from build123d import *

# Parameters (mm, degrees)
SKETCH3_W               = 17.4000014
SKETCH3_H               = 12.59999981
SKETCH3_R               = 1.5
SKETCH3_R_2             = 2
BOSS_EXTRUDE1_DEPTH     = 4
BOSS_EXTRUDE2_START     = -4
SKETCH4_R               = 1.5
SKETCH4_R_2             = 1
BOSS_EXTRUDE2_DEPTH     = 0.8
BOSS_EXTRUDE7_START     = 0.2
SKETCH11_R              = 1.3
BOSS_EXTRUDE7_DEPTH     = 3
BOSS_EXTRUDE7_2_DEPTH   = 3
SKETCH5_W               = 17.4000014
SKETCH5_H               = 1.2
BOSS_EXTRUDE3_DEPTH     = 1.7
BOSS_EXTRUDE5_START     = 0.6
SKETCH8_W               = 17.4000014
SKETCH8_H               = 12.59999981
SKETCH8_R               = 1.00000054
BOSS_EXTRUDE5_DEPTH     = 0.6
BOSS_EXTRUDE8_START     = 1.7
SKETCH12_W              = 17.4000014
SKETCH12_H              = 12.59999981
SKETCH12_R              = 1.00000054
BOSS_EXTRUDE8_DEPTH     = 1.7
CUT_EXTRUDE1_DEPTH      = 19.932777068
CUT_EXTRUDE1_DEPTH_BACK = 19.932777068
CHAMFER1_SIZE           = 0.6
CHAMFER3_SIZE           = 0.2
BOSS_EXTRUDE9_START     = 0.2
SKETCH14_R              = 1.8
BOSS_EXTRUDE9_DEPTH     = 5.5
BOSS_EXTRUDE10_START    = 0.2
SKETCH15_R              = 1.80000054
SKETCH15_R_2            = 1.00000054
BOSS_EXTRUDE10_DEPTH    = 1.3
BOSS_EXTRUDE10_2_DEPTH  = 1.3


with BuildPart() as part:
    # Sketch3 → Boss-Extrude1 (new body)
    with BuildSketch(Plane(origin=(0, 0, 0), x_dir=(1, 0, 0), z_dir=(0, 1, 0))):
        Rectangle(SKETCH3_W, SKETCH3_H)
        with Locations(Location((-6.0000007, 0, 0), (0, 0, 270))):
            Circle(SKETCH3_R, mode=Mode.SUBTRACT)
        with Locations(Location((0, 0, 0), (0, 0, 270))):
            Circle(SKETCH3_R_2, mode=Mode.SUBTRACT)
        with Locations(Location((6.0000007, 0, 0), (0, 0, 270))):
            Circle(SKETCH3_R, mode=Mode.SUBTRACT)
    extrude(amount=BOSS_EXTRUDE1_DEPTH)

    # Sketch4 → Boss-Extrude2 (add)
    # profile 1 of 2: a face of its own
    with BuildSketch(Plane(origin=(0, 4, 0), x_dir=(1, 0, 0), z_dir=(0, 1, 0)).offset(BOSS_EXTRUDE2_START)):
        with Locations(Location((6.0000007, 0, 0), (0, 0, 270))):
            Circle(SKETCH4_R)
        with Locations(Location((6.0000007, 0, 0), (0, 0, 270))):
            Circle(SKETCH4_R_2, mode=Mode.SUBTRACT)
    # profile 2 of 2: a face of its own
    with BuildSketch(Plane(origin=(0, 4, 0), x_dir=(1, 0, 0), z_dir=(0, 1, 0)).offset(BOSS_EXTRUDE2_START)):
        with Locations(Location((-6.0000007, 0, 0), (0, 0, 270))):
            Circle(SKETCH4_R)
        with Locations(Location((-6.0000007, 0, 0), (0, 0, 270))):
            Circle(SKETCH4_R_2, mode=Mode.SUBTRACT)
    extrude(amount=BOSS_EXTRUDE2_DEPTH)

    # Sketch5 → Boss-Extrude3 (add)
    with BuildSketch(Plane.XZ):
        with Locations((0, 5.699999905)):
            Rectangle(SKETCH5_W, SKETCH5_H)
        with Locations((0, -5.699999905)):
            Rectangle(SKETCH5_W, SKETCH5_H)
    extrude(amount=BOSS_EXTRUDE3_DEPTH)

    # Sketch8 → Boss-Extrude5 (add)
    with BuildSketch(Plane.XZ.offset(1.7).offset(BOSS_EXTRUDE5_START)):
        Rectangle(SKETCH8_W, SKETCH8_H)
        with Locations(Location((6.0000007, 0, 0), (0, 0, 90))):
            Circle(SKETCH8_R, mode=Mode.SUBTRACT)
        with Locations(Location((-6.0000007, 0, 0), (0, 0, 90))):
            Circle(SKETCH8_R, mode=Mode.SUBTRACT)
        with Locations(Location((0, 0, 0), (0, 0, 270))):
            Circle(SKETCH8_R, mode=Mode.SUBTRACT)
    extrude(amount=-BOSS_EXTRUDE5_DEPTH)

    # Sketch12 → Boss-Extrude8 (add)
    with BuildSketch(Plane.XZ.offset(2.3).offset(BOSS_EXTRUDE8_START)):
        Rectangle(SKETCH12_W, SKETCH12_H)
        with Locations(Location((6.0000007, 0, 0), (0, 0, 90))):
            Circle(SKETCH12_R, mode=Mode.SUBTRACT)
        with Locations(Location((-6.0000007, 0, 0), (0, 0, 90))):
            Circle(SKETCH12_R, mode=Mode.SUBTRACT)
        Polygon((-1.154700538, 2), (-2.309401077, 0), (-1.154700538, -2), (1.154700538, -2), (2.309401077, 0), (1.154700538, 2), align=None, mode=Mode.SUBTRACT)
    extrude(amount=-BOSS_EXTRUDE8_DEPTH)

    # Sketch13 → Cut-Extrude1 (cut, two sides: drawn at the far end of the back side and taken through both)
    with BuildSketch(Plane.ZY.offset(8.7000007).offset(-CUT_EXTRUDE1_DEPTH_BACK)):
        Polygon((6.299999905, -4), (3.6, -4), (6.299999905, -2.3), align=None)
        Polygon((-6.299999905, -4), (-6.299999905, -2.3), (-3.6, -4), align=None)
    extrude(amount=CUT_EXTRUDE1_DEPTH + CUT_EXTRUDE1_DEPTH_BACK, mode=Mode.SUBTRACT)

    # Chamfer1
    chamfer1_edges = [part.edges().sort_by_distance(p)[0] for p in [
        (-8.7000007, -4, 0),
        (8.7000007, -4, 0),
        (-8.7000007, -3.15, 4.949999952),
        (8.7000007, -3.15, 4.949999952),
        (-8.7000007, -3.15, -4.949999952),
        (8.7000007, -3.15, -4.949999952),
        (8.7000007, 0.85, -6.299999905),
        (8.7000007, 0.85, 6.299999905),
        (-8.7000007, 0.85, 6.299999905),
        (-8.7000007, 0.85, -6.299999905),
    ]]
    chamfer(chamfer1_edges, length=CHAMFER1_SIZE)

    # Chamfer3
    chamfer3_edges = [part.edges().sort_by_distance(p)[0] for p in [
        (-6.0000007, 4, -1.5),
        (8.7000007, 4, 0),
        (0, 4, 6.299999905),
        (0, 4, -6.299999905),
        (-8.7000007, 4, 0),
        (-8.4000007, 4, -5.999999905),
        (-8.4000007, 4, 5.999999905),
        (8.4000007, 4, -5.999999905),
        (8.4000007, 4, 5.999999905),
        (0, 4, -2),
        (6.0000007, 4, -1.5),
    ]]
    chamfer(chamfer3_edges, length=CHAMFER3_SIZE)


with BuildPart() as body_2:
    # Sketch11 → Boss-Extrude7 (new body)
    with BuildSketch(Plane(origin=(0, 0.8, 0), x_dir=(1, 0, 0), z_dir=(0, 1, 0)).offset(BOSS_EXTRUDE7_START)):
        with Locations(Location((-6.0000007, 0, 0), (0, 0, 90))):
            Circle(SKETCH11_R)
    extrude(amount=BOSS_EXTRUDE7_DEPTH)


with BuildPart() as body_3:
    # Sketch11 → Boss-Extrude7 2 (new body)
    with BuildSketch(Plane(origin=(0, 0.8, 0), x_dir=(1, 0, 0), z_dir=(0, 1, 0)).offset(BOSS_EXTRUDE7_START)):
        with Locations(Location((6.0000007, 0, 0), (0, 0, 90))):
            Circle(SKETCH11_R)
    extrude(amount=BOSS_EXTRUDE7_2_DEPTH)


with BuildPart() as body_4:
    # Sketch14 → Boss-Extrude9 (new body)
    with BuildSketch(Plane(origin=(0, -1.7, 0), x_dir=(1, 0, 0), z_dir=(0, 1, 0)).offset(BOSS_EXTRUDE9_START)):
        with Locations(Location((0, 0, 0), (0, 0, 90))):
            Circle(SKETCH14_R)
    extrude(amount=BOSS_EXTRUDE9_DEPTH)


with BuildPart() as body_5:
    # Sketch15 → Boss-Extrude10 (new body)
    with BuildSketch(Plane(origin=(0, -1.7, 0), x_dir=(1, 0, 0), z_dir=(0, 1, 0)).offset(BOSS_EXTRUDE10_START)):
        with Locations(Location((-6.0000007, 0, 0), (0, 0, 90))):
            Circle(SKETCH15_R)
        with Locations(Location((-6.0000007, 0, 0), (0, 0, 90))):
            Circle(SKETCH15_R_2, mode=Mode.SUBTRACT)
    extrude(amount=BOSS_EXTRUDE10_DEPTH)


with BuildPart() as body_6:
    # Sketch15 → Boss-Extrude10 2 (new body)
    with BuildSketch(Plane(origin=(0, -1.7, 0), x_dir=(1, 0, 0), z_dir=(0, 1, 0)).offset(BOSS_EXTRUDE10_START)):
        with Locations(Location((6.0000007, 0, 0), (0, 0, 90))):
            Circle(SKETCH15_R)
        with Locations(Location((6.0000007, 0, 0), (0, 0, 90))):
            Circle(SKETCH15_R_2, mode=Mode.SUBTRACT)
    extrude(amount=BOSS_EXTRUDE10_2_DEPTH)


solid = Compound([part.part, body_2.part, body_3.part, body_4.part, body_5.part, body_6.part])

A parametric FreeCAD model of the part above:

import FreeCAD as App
import Part
import Sketcher

V = App.Vector
Q = App.Units.Quantity


def edges_at(feature, points):
    """Names of the edges that pass closest to the given points."""
    edges = feature.Shape.Edges
    near = lambda p: min(range(len(edges)), key=lambda i: edges[i].distToShape(Part.Vertex(*p))[0])
    return sorted({f"Edge{near(p) + 1}" for p in points})


def add_polygon(sketch, points):
    """Adds a closed chain of lines whose ends are joined by coincident constraints."""
    first, n = sketch.GeometryCount, len(points)
    for a, b in zip(points, points[1:] + points[:1]):
        sketch.addGeometry(Part.LineSegment(App.Vector(*a, 0), App.Vector(*b, 0)), False)
    for i in range(n):
        sketch.addConstraint(Sketcher.Constraint("Coincident", first + i, 2, first + (i + 1) % n, 1))

doc = App.newDocument("Part")
body = doc.addObject("PartDesign::Body", "Body")

sketch1 = body.newObject("Sketcher::SketchObject", "Sketch")
sketch1.AttachmentSupport = (doc.getObject("XZ_Plane"), [""])
sketch1.MapMode = "FlatFace"
add_polygon(sketch1, [(-8.7, -6.3), (-8.7, 6.3), (8.7, 6.3), (8.7, -6.3)])
sketch1.addGeometry(Part.Circle(V(-6, 0, 0), V(0, 0, 1), 1.5), False)
sketch1.addGeometry(Part.Circle(V(0, 0, 0), V(0, 0, 1), 2), False)
sketch1.addGeometry(Part.Circle(V(6, 0, 0), V(0, 0, 1), 1.5), False)
sketch1.addConstraint([
    Sketcher.Constraint("Vertical", 0),
    Sketcher.Constraint("Horizontal", 1),
    Sketcher.Constraint("Vertical", 2),
    Sketcher.Constraint("Horizontal", 3),
    Sketcher.Constraint("Coincident", 5, 3, -1, 1),
    Sketcher.Constraint("Equal", 4, 6),
    Sketcher.Constraint("Symmetric", 4, 3, 6, 3, -1, 1),
    Sketcher.Constraint("Symmetric", 0, 2, 2, 2, -1, 1),
    Sketcher.Constraint("PointOnObject", 4, 3, -1),
    Sketcher.Constraint("Diameter", 4, 3.0),
    Sketcher.Constraint("Diameter", 5, 4.0),
    Sketcher.Constraint("DistanceX", 1, 1, 1, 2, 17.400001),
    Sketcher.Constraint("DistanceY", 0, 1, 0, 2, 12.6),
    Sketcher.Constraint("DistanceX", 4, 3, -1, 1, 6.000001),
])
pad1 = body.newObject("PartDesign::Pad", "Pad")
pad1.Profile = sketch1
pad1.Length = 4
pad1.Reversed = True

sketch2 = body.newObject("Sketcher::SketchObject", "Sketch001")
sketch2.AttachmentSupport = (doc.getObject("XZ_Plane"), [""])
sketch2.MapMode = "FlatFace"
sketch2.addGeometry([
    Part.Circle(V(6, 0, 0), V(0, 0, 1), 1.5),
    Part.Circle(V(6, 0, 0), V(0, 0, 1), 1),
    Part.Circle(V(-6, 0, 0), V(0, 0, 1), 1.5),
    Part.Circle(V(-6, 0, 0), V(0, 0, 1), 1),
], False)
sketch2.addConstraint([
    Sketcher.Constraint("Coincident", 1, 3, 0, 3),
    Sketcher.Constraint("Coincident", 3, 3, 2, 3),
    Sketcher.Constraint("Equal", 0, 2),
    Sketcher.Constraint("Equal", 1, 3),
    Sketcher.Constraint("Symmetric", 0, 3, 2, 3, -1, 1),
    Sketcher.Constraint("PointOnObject", 0, 3, -1),
    Sketcher.Constraint("Diameter", 0, 3.0),
    Sketcher.Constraint("Diameter", 1, 2.0),
    Sketcher.Constraint("DistanceX", -1, 1, 0, 3, 6.000001),
])
pad2 = body.newObject("PartDesign::Pad", "Pad001")
pad2.Profile = sketch2
pad2.Length = 0.8
pad2.Reversed = True

sketch3 = body.newObject("Sketcher::SketchObject", "Sketch002")
sketch3.AttachmentSupport = (doc.getObject("XZ_Plane"), [""])
sketch3.MapMode = "FlatFace"
add_polygon(sketch3, [(-8.7, 6.3), (-8.7, 5.1), (8.7, 5.1), (8.7, 6.3)])
add_polygon(sketch3, [(-8.7, -5.1), (-8.7, -6.3), (8.7, -6.3), (8.7, -5.1)])
sketch3.addConstraint([
    Sketcher.Constraint("Vertical", 0),
    Sketcher.Constraint("Horizontal", 1),
    Sketcher.Constraint("Vertical", 2),
    Sketcher.Constraint("Horizontal", 3),
    Sketcher.Constraint("Vertical", 4),
    Sketcher.Constraint("Horizontal", 5),
    Sketcher.Constraint("Vertical", 6),
    Sketcher.Constraint("Horizontal", 7),
    Sketcher.Constraint("Symmetric", 2, 2, 4, 2, -1, 1),
    Sketcher.Constraint("Symmetric", 0, 2, 6, 2, -1, 1),
    Sketcher.Constraint("Vertical", 3, 2, 4, 2),
    Sketcher.Constraint("DistanceX", 1, 1, 1, 2, 17.400001),
    Sketcher.Constraint("DistanceY", 0, 2, 0, 1, 1.2),
    Sketcher.Constraint("DistanceY", -1, 1, 0, 2, 5.1),
])
pad3 = body.newObject("PartDesign::Pad", "Pad002")
pad3.Profile = sketch3
pad3.Length = 1.7

sketch4 = body.newObject("Sketcher::SketchObject", "Sketch003")
sketch4.AttachmentSupport = (doc.getObject("XZ_Plane"), [""])
sketch4.MapMode = "FlatFace"
sketch4.AttachmentOffset = App.Placement(V(0, 0, 2.3), App.Rotation())
add_polygon(sketch4, [(-8.7, 6.3), (-8.7, -6.3), (8.7, -6.3), (8.7, 6.3)])
sketch4.addGeometry(Part.Circle(V(-6, 0, 0), V(0, 0, 1), 1), False)
sketch4.addGeometry(Part.Circle(V(0, 0, 0), V(0, 0, 1), 1), False)
sketch4.addGeometry(Part.Circle(V(6, 0, 0), V(0, 0, 1), 1), False)
sketch4.addConstraint([
    Sketcher.Constraint("Vertical", 0),
    Sketcher.Constraint("Horizontal", 1),
    Sketcher.Constraint("Vertical", 2),
    Sketcher.Constraint("Horizontal", 3),
    Sketcher.Constraint("Coincident", 5, 3, -1, 1),
    Sketcher.Constraint("Equal", 4, 5),
    Sketcher.Constraint("Equal", 5, 6),
    Sketcher.Constraint("Symmetric", 4, 3, 6, 3, -1, 1),
    Sketcher.Constraint("Symmetric", 0, 2, 2, 2, -1, 1),
    Sketcher.Constraint("PointOnObject", 4, 3, -1),
    Sketcher.Constraint("Diameter", 4, 2.000001),
    Sketcher.Constraint("DistanceX", 1, 1, 1, 2, 17.400001),
    Sketcher.Constraint("DistanceY", 0, 2, 0, 1, 12.6),
    Sketcher.Constraint("DistanceX", 4, 3, -1, 1, 6.000001),
])
pad4 = body.newObject("PartDesign::Pad", "Pad003")
pad4.Profile = sketch4
pad4.Length = 0.6
pad4.Reversed = True

sketch5 = body.newObject("Sketcher::SketchObject", "Sketch004")
sketch5.AttachmentSupport = (doc.getObject("XZ_Plane"), [""])
sketch5.MapMode = "FlatFace"
sketch5.AttachmentOffset = App.Placement(V(0, 0, 4), App.Rotation())
add_polygon(sketch5, [(-8.7, 6.3), (-8.7, -6.3), (8.7, -6.3), (8.7, 6.3)])
sketch5.addGeometry(Part.Circle(V(-6, 0, 0), V(0, 0, 1), 1), False)
add_polygon(sketch5, [(-2.3, 0), (-1.2, 2), (1.2, 2), (2.3, 0), (1.2, -2), (-1.2, -2)])
sketch5.addGeometry(Part.Circle(V(6, 0, 0), V(0, 0, 1), 1), False)
sketch5.addConstraint([
    Sketcher.Constraint("Vertical", 0),
    Sketcher.Constraint("Horizontal", 1),
    Sketcher.Constraint("Vertical", 2),
    Sketcher.Constraint("Horizontal", 3),
    Sketcher.Constraint("Horizontal", 6),
    Sketcher.Constraint("Horizontal", 9),
    Sketcher.Constraint("Equal", 4, 11),
    Sketcher.Constraint("Symmetric", 4, 3, 11, 3, -1, 1),
    Sketcher.Constraint("Symmetric", 0, 2, 2, 2, -1, 1),
    Sketcher.Constraint("Symmetric", 5, 2, 8, 2, -1, 1),
    Sketcher.Constraint("Symmetric", 7, 2, 10, 2, -1, 1),
    Sketcher.Constraint("PointOnObject", 4, 3, -1),
    Sketcher.Constraint("PointOnObject", 7, 2, -1),
    Sketcher.Constraint("Parallel", 7, 10),
    Sketcher.Constraint("Vertical", 6, 2, 8, 2),
    Sketcher.Constraint("Diameter", 4, 2.000001),
    Sketcher.Constraint("Angle", 5, Q("60 deg")),
    Sketcher.Constraint("DistanceX", 1, 1, 1, 2, 17.400001),
    Sketcher.Constraint("DistanceY", 0, 2, 0, 1, 12.6),
    Sketcher.Constraint("DistanceX", 4, 3, -1, 1, 6.000001),
    Sketcher.Constraint("DistanceY", -1, 1, 5, 2, 2.0),
    Sketcher.Constraint("DistanceX", 6, 1, 6, 2, 2.309401),
])
pad5 = body.newObject("PartDesign::Pad", "Pad004")
pad5.Profile = sketch5
pad5.Length = 1.7
pad5.Reversed = True

sketch6 = body.newObject("Sketcher::SketchObject", "Sketch005")
sketch6.AttachmentSupport = (doc.getObject("YZ_Plane"), [""])
sketch6.MapMode = "FlatFace"
sketch6.AttachmentOffset = App.Placement(V(0, 0, -8.700001), App.Rotation())
add_polygon(sketch6, [(-4, 3.6), (-4, 6.3), (-2.3, 6.3)])
add_polygon(sketch6, [(-2.3, -6.3), (-4, -6.3), (-4, -3.6)])
sketch6.addConstraint([
    Sketcher.Constraint("Vertical", 0),
    Sketcher.Constraint("Horizontal", 1),
    Sketcher.Constraint("Horizontal", 3),
    Sketcher.Constraint("Vertical", 4),
    Sketcher.Constraint("Symmetric", 0, 2, 3, 2, -1),
    Sketcher.Constraint("Vertical", 1, 2, 5, 2),
    Sketcher.Constraint("Equal", 0, 4),
    Sketcher.Constraint("DistanceX", 1, 1, 1, 2, 1.7),
    Sketcher.Constraint("DistanceY", 0, 1, 0, 2, 2.7),
    Sketcher.Constraint("DistanceX", 0, 2, -1, 1, 4.0),
    Sketcher.Constraint("DistanceY", -1, 1, 0, 2, 6.3),
])
pocket1 = body.newObject("PartDesign::Pocket", "Pocket")
pocket1.Profile = sketch6
pocket1.Type = "ThroughAll"
pocket1.Midplane = True
doc.recompute()

chamfer = body.newObject("PartDesign::Chamfer", "Chamfer")
chamfer.Base = (pocket1, edges_at(pocket1, [
    (-8.7, -4, 0),
    (8.7, -4, 0),
    (-8.7, -3.15, 4.95),
    (8.7, -3.15, 4.95),
    (-8.7, -3.15, -4.95),
    (8.7, -3.15, -4.95),
    (8.7, 0.85, -6.3),
    (8.7, 0.85, 6.3),
    (-8.7, 0.85, 6.3),
    (-8.7, 0.85, -6.3),
]))
chamfer.Size = 0.6
doc.recompute()

chamfer2 = body.newObject("PartDesign::Chamfer", "Chamfer001")
chamfer2.Base = (chamfer, edges_at(chamfer, [
    (-6, 4, -1.5),
    (8.7, 4, 0),
    (0, 4, 6.3),
    (0, 4, -6.3),
    (-8.7, 4, 0),
    (-8.4, 4, -6),
    (-8.4, 4, 6),
    (8.4, 4, -6),
    (8.4, 4, 6),
    (0, 4, -2),
    (6, 4, -1.5),
]))
chamfer2.Size = 0.2
body2 = doc.addObject("PartDesign::Body", "Body001")

sketch7 = body2.newObject("Sketcher::SketchObject", "Sketch006")
sketch7.AttachmentSupport = (doc.getObject("XZ_Plane001"), [""])
sketch7.MapMode = "FlatFace"
sketch7.AttachmentOffset = App.Placement(V(0, 0, -1), App.Rotation())
sketch7.addGeometry(Part.Circle(V(-6, 0, 0), V(0, 0, 1), 1.3), False)
sketch7.addConstraint([
    Sketcher.Constraint("PointOnObject", 0, 3, -1),
    Sketcher.Constraint("Diameter", 0, 2.6),
    Sketcher.Constraint("DistanceX", 0, 3, -1, 1, 6.000001),
])
pad6 = body2.newObject("PartDesign::Pad", "Pad005")
pad6.Profile = sketch7
pad6.Length = 3
pad6.Reversed = True
body3 = doc.addObject("PartDesign::Body", "Body002")

sketch8 = body3.newObject("Sketcher::SketchObject", "Sketch007")
sketch8.AttachmentSupport = (doc.getObject("XZ_Plane002"), [""])
sketch8.MapMode = "FlatFace"
sketch8.AttachmentOffset = App.Placement(V(0, 0, -1), App.Rotation())
sketch8.addGeometry(Part.Circle(V(6, 0, 0), V(0, 0, 1), 1.3), False)
sketch8.addConstraint([
    Sketcher.Constraint("PointOnObject", 0, 3, -1),
    Sketcher.Constraint("Diameter", 0, 2.6),
    Sketcher.Constraint("DistanceX", -1, 1, 0, 3, 6.000001),
])
pad7 = body3.newObject("PartDesign::Pad", "Pad006")
pad7.Profile = sketch8
pad7.Length = 3
pad7.Reversed = True
body4 = doc.addObject("PartDesign::Body", "Body003")

sketch9 = body4.newObject("Sketcher::SketchObject", "Sketch008")
sketch9.AttachmentSupport = (doc.getObject("XZ_Plane003"), [""])
sketch9.MapMode = "FlatFace"
sketch9.AttachmentOffset = App.Placement(V(0, 0, 1.5), App.Rotation())
sketch9.addGeometry(Part.Circle(V(0, 0, 0), V(0, 0, 1), 1.8), False)
sketch9.addConstraint([
    Sketcher.Constraint("Coincident", 0, 3, -1, 1),
    Sketcher.Constraint("Diameter", 0, 3.6),
])
pad8 = body4.newObject("PartDesign::Pad", "Pad007")
pad8.Profile = sketch9
pad8.Length = 5.5
pad8.Reversed = True
body5 = doc.addObject("PartDesign::Body", "Body004")

sketch10 = body5.newObject("Sketcher::SketchObject", "Sketch009")
sketch10.AttachmentSupport = (doc.getObject("XZ_Plane004"), [""])
sketch10.MapMode = "FlatFace"
sketch10.AttachmentOffset = App.Placement(V(0, 0, 1.5), App.Rotation())
sketch10.addGeometry([
    Part.Circle(V(-6, 0, 0), V(0, 0, 1), 1.8),
    Part.Circle(V(-6, 0, 0), V(0, 0, 1), 1),
], False)
sketch10.addConstraint([
    Sketcher.Constraint("Coincident", 1, 3, 0, 3),
    Sketcher.Constraint("PointOnObject", 0, 3, -1),
    Sketcher.Constraint("Diameter", 1, 2.000001),
    Sketcher.Constraint("Diameter", 0, 3.600001),
    Sketcher.Constraint("DistanceX", 0, 3, -1, 1, 6.000001),
])
pad9 = body5.newObject("PartDesign::Pad", "Pad008")
pad9.Profile = sketch10
pad9.Length = 1.3
pad9.Reversed = True
body6 = doc.addObject("PartDesign::Body", "Body005")

sketch11 = body6.newObject("Sketcher::SketchObject", "Sketch010")
sketch11.AttachmentSupport = (doc.getObject("XZ_Plane005"), [""])
sketch11.MapMode = "FlatFace"
sketch11.AttachmentOffset = App.Placement(V(0, 0, 1.5), App.Rotation())
sketch11.addGeometry([
    Part.Circle(V(6, 0, 0), V(0, 0, 1), 1.8),
    Part.Circle(V(6, 0, 0), V(0, 0, 1), 1),
], False)
sketch11.addConstraint([
    Sketcher.Constraint("Coincident", 1, 3, 0, 3),
    Sketcher.Constraint("PointOnObject", 0, 3, -1),
    Sketcher.Constraint("Diameter", 1, 2.000001),
    Sketcher.Constraint("Diameter", 0, 3.600001),
    Sketcher.Constraint("DistanceX", -1, 1, 0, 3, 6.000001),
])
pad10 = body6.newObject("PartDesign::Pad", "Pad009")
pad10.Profile = sketch11
pad10.Length = 1.3
pad10.Reversed = True

doc.recompute()
